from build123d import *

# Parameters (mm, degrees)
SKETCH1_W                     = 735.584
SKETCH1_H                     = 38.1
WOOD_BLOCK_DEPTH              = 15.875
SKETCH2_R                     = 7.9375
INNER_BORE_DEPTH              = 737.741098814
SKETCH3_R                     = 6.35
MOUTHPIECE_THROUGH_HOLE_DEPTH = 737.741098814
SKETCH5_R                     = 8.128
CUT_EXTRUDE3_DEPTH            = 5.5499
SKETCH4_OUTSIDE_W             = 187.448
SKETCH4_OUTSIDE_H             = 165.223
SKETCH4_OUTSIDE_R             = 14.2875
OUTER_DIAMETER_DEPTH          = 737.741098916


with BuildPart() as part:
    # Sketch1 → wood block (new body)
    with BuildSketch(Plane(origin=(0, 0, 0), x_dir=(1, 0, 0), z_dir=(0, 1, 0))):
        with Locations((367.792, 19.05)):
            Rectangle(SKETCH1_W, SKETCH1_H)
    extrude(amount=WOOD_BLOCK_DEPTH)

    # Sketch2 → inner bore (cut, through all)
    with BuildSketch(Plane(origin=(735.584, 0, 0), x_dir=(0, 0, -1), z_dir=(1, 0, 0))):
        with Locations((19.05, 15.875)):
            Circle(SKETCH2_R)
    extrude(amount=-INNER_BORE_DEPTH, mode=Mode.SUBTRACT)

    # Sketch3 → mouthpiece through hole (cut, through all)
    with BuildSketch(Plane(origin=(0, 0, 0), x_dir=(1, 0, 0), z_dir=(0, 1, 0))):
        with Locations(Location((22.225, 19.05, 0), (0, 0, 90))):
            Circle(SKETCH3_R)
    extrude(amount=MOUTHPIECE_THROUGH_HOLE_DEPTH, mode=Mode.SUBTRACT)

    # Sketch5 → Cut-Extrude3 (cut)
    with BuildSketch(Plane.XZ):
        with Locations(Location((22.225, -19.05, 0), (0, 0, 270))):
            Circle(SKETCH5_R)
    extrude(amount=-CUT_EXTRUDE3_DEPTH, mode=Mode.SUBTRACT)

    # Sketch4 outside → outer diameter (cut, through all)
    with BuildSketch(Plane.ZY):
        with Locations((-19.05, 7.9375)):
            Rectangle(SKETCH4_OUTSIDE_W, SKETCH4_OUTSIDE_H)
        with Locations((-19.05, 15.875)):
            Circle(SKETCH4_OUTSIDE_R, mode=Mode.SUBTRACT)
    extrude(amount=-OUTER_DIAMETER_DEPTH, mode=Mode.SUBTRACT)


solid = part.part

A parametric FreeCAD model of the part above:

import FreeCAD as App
import Part
import Sketcher
Q = App.Units.Quantity

doc = App.newDocument("Part")
body = doc.addObject("PartDesign::Body", "Body")

sketch1 = body.newObject("Sketcher::SketchObject", "Sketch")
sketch1.AttachmentSupport = (doc.getObject("XZ_Plane"), [""])
sketch1.MapMode = "FlatFace"
sketch1.addGeometry(Part.LineSegment(App.Vector(0, -38, 0), App.Vector(0, 0, 0)), False)
sketch1.addGeometry(Part.LineSegment(App.Vector(0, 0, 0), App.Vector(736, 0, 0)), False)
sketch1.addGeometry(Part.LineSegment(App.Vector(736, 0, 0), App.Vector(736, -38, 0)), False)
sketch1.addGeometry(Part.LineSegment(App.Vector(736, -38, 0), App.Vector(0, -38, 0)), False)
sketch1.addConstraint(Sketcher.Constraint("Coincident", 0, 2, 1, 1))
sketch1.addConstraint(Sketcher.Constraint("Coincident", 1, 2, 2, 1))
sketch1.addConstraint(Sketcher.Constraint("Coincident", 2, 2, 3, 1))
sketch1.addConstraint(Sketcher.Constraint("Coincident", 3, 2, 0, 1))
sketch1.addConstraint(Sketcher.Constraint("Vertical", 0))
sketch1.addConstraint(Sketcher.Constraint("Horizontal", 1))
sketch1.addConstraint(Sketcher.Constraint("Vertical", 2))
sketch1.addConstraint(Sketcher.Constraint("Horizontal", 3))
sketch1.addConstraint(Sketcher.Constraint("Coincident", 0, 2, -1, 1))
sketch1.addConstraint(Sketcher.Constraint("DistanceY", 0, 1, 0, 2, Q("1.5 in")))
sketch1.addConstraint(Sketcher.Constraint("DistanceX", 1, 1, 1, 2, Q("28.96 in")))
pad1 = body.newObject("PartDesign::Pad", "Pad")
pad1.Profile = sketch1
pad1.Length = Q("0.625 in")
pad1.Reversed = True

sketch2 = body.newObject("Sketcher::SketchObject", "Sketch001")
sketch2.AttachmentSupport = (doc.getObject("YZ_Plane"), [""])
sketch2.MapMode = "FlatFace"
sketch2.AttachmentOffset = App.Placement(App.Vector(0, 0, 28.96 * 25.4), App.Rotation())
sketch2.addGeometry(Part.Circle(App.Vector(16, -19, 0), App.Vector(0, 0, 1), 8), False)
sketch2.addConstraint(Sketcher.Constraint("Diameter", 0, Q("0.625 in")))
sketch2.addConstraint(Sketcher.Constraint("DistanceY", 0, 3, -1, 1, Q("0.75 in")))
sketch2.addConstraint(Sketcher.Constraint("DistanceX", -1, 1, 0, 3, Q("0.625 in")))
pocket1 = body.newObject("PartDesign::Pocket", "Pocket")
pocket1.Profile = sketch2
pocket1.Type = "ThroughAll"

sketch3 = body.newObject("Sketcher::SketchObject", "Sketch002")
sketch3.AttachmentSupport = (doc.getObject("XZ_Plane"), [""])
sketch3.MapMode = "FlatFace"
sketch3.addGeometry(Part.Circle(App.Vector(22, -19, 0), App.Vector(0, 0, 1), 6), False)
sketch3.addConstraint(Sketcher.Constraint("Diameter", 0, Q("0.5 in")))
sketch3.addConstraint(Sketcher.Constraint("DistanceY", 0, 3, -1, 1, Q("0.75 in")))
sketch3.addConstraint(Sketcher.Constraint("DistanceX", -1, 1, 0, 3, Q("0.875 in")))
pocket2 = body.newObject("PartDesign::Pocket", "Pocket001")
pocket2.Profile = sketch3
pocket2.Type = "ThroughAll"

sketch4 = body.newObject("Sketcher::SketchObject", "Sketch003")
sketch4.AttachmentSupport = (doc.getObject("XZ_Plane"), [""])
sketch4.MapMode = "FlatFace"
sketch4.addGeometry(Part.Circle(App.Vector(22, -19, 0), App.Vector(0, 0, 1), 8), False)
sketch4.addConstraint(Sketcher.Constraint("Diameter", 0, Q("0.64 in")))
sketch4.addConstraint(Sketcher.Constraint("DistanceY", 0, 3, -1, 1, Q("0.75 in")))
sketch4.addConstraint(Sketcher.Constraint("DistanceX", -1, 1, 0, 3, Q("0.875 in")))
pocket3 = body.newObject("PartDesign::Pocket", "Pocket002")
pocket3.Profile = sketch4
pocket3.Length = Q("0.2185 in")

sketch5 = body.newObject("Sketcher::SketchObject", "Sketch004")
sketch5.AttachmentSupport = (doc.getObject("YZ_Plane"), [""])
sketch5.MapMode = "FlatFace"
sketch5.addGeometry(Part.LineSegment(App.Vector(91, -113, 0), App.Vector(-75, -113, 0)), False)
sketch5.addGeometry(Part.LineSegment(App.Vector(-75, -113, 0), App.Vector(-75, 75, 0)), False)
sketch5.addGeometry(Part.LineSegment(App.Vector(-75, 75, 0), App.Vector(91, 75, 0)), False)
sketch5.addGeometry(Part.LineSegment(App.Vector(91, 75, 0), App.Vector(91, -113, 0)), False)
sketch5.addGeometry(Part.Circle(App.Vector(16, -19, 0), App.Vector(0, 0, 1), 14), False)
sketch5.addConstraint(Sketcher.Constraint("Coincident", 0, 2, 1, 1))
sketch5.addConstraint(Sketcher.Constraint("Coincident", 1, 2, 2, 1))
sketch5.addConstraint(Sketcher.Constraint("Coincident", 2, 2, 3, 1))
sketch5.addConstraint(Sketcher.Constraint("Coincident", 3, 2, 0, 1))
sketch5.addConstraint(Sketcher.Constraint("Horizontal", 0))
sketch5.addConstraint(Sketcher.Constraint("Vertical", 1))
sketch5.addConstraint(Sketcher.Constraint("Horizontal", 2))
sketch5.addConstraint(Sketcher.Constraint("Vertical", 3))
sketch5.addConstraint(Sketcher.Constraint("Diameter", 4, Q("1.125 in")))
sketch5.addConstraint(Sketcher.Constraint("DistanceY", 4, 3, -1, 1, Q("0.75 in")))
sketch5.addConstraint(Sketcher.Constraint("DistanceX", -1, 1, 4, 3, Q("0.625 in")))
sketch5.addConstraint(Sketcher.Constraint("DistanceX", 0, 2, 0, 1, Q("165.223 mm")))
sketch5.addConstraint(Sketcher.Constraint("DistanceY", 1, 1, 1, 2, Q("187.448 mm")))
sketch5.addConstraint(Sketcher.Constraint("DistanceX", 0, 2, -1, 1, Q("74.674 mm")))
sketch5.addConstraint(Sketcher.Constraint("DistanceY", 0, 2, -1, 1, Q("112.774 mm")))
pocket4 = body.newObject("PartDesign::Pocket", "Pocket003")
pocket4.Profile = sketch5
pocket4.Type = "ThroughAll"
pocket4.Reversed = True

doc.recompute()
